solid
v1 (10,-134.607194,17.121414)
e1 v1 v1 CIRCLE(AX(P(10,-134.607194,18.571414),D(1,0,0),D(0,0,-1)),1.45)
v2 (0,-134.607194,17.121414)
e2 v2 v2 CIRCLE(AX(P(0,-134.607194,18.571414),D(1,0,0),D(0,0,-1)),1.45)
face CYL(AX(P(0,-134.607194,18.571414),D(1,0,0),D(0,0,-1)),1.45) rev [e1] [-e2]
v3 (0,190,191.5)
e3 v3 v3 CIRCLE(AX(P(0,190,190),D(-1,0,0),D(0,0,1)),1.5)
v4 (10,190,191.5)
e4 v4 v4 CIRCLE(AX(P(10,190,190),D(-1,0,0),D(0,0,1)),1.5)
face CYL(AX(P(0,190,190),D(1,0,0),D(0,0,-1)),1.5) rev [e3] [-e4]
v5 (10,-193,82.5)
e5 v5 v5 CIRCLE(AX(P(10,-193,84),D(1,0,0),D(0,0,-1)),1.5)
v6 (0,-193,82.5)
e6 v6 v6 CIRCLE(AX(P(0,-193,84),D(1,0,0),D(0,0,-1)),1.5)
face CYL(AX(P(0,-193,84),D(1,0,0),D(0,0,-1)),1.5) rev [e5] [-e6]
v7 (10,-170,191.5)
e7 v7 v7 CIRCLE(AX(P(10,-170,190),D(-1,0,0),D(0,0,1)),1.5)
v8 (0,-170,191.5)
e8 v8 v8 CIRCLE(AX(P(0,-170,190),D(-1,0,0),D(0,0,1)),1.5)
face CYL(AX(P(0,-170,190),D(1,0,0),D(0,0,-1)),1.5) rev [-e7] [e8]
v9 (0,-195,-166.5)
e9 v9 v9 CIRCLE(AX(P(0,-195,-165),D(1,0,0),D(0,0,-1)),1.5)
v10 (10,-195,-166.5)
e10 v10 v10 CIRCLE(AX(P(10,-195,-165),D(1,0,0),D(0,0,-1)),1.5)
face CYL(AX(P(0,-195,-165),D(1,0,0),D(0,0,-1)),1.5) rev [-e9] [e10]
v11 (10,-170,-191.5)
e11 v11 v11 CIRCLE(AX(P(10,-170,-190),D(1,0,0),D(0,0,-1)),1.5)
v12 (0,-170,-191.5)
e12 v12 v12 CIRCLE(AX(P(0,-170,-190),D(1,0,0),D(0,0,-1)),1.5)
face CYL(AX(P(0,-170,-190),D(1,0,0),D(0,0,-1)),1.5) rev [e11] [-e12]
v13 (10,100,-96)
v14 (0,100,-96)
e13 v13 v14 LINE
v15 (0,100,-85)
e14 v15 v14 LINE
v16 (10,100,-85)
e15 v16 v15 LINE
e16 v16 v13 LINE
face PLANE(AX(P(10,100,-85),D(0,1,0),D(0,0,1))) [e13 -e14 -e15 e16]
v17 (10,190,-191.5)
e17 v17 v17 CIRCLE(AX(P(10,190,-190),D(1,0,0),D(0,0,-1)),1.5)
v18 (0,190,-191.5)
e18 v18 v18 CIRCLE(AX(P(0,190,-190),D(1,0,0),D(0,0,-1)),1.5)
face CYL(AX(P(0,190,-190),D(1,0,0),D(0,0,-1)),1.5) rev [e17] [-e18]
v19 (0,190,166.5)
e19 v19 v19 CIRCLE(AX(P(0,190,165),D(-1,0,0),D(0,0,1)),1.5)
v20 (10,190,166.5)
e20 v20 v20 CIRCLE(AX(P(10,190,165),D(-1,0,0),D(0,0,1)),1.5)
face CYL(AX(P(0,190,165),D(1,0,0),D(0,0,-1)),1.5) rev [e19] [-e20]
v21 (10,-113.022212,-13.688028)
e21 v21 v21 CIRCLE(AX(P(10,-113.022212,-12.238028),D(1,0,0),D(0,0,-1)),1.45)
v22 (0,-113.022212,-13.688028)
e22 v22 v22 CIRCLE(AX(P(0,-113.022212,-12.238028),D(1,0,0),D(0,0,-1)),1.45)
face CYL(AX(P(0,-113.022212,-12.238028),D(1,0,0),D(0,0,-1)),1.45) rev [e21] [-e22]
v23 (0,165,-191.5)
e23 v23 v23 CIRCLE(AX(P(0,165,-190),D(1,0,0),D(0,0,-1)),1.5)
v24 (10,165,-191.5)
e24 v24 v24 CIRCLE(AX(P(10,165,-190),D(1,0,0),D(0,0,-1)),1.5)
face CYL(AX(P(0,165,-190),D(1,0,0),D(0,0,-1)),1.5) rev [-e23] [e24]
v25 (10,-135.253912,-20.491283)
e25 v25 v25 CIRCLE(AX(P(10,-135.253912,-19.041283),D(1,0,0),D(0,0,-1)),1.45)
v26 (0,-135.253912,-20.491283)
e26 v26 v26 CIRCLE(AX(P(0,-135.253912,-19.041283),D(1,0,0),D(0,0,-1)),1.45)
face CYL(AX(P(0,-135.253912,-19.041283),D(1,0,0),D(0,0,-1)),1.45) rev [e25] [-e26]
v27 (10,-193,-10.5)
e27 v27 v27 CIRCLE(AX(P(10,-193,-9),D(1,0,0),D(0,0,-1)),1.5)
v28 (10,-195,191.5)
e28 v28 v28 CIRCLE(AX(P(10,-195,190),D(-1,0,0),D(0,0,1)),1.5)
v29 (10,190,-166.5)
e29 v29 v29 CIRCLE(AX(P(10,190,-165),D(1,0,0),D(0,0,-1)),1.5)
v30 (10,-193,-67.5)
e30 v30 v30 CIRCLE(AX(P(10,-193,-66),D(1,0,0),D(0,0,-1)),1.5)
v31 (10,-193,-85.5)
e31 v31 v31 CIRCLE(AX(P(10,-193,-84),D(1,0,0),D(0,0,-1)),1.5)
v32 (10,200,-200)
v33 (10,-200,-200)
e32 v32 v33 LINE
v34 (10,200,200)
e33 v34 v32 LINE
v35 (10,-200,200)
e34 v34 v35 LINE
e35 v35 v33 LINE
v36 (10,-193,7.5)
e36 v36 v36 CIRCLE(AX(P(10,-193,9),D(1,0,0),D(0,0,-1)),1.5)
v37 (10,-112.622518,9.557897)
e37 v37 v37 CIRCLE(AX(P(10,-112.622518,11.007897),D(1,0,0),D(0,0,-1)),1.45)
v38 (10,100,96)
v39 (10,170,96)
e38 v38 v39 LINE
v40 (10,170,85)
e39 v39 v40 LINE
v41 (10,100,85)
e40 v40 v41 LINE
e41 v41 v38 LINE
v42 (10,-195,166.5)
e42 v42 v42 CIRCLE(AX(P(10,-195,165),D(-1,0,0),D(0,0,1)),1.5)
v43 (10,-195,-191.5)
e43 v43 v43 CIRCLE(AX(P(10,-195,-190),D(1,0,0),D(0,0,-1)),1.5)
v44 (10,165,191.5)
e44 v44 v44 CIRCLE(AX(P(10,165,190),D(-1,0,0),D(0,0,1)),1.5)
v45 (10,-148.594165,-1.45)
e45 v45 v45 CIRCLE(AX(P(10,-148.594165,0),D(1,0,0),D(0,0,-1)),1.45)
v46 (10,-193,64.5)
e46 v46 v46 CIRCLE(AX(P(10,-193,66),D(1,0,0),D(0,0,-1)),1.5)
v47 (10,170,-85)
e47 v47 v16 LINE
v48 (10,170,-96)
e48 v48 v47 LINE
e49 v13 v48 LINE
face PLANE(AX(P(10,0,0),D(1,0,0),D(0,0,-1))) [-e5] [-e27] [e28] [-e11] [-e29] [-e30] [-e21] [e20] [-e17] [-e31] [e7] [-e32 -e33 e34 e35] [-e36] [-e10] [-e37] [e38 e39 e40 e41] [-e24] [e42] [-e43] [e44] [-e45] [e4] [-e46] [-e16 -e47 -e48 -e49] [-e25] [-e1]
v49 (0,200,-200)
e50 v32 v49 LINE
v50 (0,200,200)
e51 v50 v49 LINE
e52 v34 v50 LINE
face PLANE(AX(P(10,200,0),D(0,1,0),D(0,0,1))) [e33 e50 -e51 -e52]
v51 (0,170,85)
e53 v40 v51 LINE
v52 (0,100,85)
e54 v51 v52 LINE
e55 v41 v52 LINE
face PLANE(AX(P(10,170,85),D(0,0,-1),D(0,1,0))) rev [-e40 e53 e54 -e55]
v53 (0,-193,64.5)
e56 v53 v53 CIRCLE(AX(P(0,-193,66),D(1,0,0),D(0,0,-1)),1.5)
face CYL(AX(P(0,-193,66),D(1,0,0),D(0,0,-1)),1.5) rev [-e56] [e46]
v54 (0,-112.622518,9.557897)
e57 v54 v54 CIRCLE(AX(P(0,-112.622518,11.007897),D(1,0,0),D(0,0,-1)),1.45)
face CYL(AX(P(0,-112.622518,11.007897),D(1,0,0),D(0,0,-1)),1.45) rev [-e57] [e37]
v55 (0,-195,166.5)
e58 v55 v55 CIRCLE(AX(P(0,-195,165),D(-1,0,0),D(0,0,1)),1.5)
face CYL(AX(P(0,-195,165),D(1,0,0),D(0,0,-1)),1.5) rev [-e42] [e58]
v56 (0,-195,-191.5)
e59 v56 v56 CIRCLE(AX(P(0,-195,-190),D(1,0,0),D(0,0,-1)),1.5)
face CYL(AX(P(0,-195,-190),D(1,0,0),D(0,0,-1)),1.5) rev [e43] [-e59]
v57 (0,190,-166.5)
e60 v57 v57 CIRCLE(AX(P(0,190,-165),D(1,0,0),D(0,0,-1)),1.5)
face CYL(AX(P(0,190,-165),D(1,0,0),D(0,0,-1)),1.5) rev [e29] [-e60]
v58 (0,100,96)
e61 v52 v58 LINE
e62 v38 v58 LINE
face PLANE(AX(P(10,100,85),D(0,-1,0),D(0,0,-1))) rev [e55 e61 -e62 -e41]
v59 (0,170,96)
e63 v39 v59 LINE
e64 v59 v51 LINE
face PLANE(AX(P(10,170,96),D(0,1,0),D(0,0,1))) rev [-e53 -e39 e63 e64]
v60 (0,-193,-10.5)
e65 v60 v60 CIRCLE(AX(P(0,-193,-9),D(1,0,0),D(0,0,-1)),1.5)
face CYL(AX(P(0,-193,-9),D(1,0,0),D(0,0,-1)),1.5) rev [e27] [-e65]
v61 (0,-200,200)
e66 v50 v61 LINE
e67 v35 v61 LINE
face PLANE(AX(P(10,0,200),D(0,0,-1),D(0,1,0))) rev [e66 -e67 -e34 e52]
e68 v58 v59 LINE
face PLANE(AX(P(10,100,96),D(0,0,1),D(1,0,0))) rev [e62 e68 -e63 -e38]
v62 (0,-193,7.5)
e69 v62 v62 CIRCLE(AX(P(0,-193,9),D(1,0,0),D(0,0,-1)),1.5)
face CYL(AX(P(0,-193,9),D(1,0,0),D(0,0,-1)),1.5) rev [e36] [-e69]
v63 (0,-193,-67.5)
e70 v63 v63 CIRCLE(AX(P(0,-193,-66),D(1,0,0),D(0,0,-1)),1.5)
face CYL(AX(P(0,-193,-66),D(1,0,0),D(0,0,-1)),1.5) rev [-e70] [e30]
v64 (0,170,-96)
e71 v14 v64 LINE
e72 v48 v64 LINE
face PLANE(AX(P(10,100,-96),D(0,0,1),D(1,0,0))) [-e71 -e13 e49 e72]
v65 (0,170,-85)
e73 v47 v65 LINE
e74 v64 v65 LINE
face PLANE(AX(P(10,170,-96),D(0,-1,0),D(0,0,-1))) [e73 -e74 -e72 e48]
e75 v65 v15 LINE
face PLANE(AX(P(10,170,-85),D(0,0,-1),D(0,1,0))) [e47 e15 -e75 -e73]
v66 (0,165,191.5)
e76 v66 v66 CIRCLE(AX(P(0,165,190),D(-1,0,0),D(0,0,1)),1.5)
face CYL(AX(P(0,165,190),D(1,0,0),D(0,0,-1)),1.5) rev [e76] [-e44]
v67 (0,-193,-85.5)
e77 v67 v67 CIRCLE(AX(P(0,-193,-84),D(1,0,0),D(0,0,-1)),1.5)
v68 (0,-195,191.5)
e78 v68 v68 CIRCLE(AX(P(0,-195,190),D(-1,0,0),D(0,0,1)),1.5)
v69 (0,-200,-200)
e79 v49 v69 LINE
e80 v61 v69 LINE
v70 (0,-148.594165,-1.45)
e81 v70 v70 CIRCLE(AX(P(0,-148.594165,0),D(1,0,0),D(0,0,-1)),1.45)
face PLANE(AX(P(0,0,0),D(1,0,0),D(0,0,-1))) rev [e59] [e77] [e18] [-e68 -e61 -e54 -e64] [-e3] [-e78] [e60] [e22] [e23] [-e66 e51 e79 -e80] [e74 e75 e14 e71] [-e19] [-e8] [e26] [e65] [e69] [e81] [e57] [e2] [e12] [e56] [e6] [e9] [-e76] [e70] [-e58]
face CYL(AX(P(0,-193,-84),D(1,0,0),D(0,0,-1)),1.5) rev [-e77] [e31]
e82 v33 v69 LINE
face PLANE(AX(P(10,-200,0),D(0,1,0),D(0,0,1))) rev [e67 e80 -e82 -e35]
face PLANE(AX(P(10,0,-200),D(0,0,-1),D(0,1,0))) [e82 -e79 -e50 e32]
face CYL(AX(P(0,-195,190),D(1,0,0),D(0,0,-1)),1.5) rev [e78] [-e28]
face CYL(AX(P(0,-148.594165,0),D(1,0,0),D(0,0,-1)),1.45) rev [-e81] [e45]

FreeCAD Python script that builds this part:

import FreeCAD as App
import Part
import Sketcher

V = App.Vector

doc = App.newDocument("Part")
body = doc.addObject("PartDesign::Body", "Body")

# Sketch on YZ plane
sketch1 = body.newObject("Sketcher::SketchObject", "Sketch")
sketch1.AttachmentSupport = (doc.getObject("YZ_Plane"), [""])
sketch1.MapMode = "FlatFace"
sketch1.addGeometry([
    Part.LineSegment(V(200, 200, 0), V(-200, 200, 0)),
    Part.LineSegment(V(-200, 200, 0), V(-200, -200, 0)),
    Part.LineSegment(V(-200, -200, 0), V(200, -200, 0)),
    Part.LineSegment(V(200, -200, 0), V(200, 200, 0)),
], False)
sketch1.addConstraint([
    Sketcher.Constraint("Coincident", 0, 2, 1, 1),
    Sketcher.Constraint("Coincident", 1, 2, 2, 1),
    Sketcher.Constraint("Coincident", 2, 2, 3, 1),
    Sketcher.Constraint("Coincident", 3, 2, 0, 1),
    Sketcher.Constraint("Horizontal", 0),
    Sketcher.Constraint("Vertical", 1),
    Sketcher.Constraint("Horizontal", 2),
    Sketcher.Constraint("Vertical", 3),
    Sketcher.Constraint("Symmetric", 0, 2, 2, 2, -1, 1),
    Sketcher.Constraint("Equal", 2, 1),
    Sketcher.Constraint("DistanceX", 0, 2, 0, 1, 400.0),
])
pad1 = body.newObject("PartDesign::Pad", "Pad")
pad1.Profile = sketch1
pad1.Length = 10

# Sketch on YZ plane
sketch2 = body.newObject("Sketcher::SketchObject", "Sketch001")
sketch2.AttachmentSupport = (doc.getObject("YZ_Plane"), [""])
sketch2.MapMode = "FlatFace"
sketch2.AttachmentOffset = App.Placement(V(0, 0, 10), App.Rotation())
sketch2.addGeometry([
    Part.Circle(V(190, -190, 0), V(0, 0, 1), 1.5),  # 0
    Part.Circle(V(190, -165, 0), V(0, 0, 1), 1.5),  # 1
    Part.Circle(V(165, -190, 0), V(0, 0, 1), 1.5),  # 2
    Part.Circle(V(-195, -190, 0), V(0, 0, 1), 1.5),  # 3
    Part.Circle(V(-195, -165, 0), V(0, 0, 1), 1.5),  # 4
    Part.Circle(V(-170, -190, 0), V(0, 0, 1), 1.5),  # 5
], False)
sketch2.addConstraint([
    Sketcher.Constraint("Equal", 0, 1),
    Sketcher.Constraint("Equal", 1, 2),
    Sketcher.Constraint("Equal", 2, 3),
    Sketcher.Constraint("Equal", 3, 4),
    Sketcher.Constraint("Equal", 4, 5),
    Sketcher.Constraint("Horizontal", 0, 3, 2, 3),
    Sketcher.Constraint("Horizontal", 2, 3, 3, 3),
    Sketcher.Constraint("Horizontal", 1, 3, 4, 3),
    Sketcher.Constraint("Horizontal", 3, 3, 5, 3),
    Sketcher.Constraint("Vertical", 0, 3, 1, 3),
    Sketcher.Constraint("Vertical", 3, 3, 4, 3),
    Sketcher.Constraint("Diameter", 0, 3.0),
    Sketcher.Constraint("DistanceX", -1, 1, 0, 3, 190.0),
    Sketcher.Constraint("DistanceY", 0, 3, -1, 1, 190.0),
    Sketcher.Constraint("DistanceY", 1, 3, -1, 1, 165.0),
    Sketcher.Constraint("DistanceX", -1, 1, 2, 3, 165.0),
    Sketcher.Constraint("DistanceX", 3, 3, -1, 1, 195.0),
    Sketcher.Constraint("DistanceX", 5, 3, -1, 1, 170.0),
])
pocket1 = body.newObject("PartDesign::Pocket", "Pocket")
pocket1.Profile = sketch2
pocket1.Length = 10

# Sketch on YZ plane
sketch3 = body.newObject("Sketcher::SketchObject", "Sketch002")
sketch3.AttachmentSupport = (doc.getObject("YZ_Plane"), [""])
sketch3.MapMode = "FlatFace"
sketch3.AttachmentOffset = App.Placement(V(0, 0, 10), App.Rotation())
sketch3.addGeometry([
    Part.Circle(V(-193, 84, 0), V(0, 0, 1), 1.5),  # 0
    Part.Circle(V(-193, 66, 0), V(0, 0, 1), 1.5),  # 1
    Part.Circle(V(-193, 9, 0), V(0, 0, 1), 1.5),  # 2
    Part.Circle(V(-193, -9, 0), V(0, 0, 1), 1.5),  # 3
    Part.Circle(V(-193, -66, 0), V(0, 0, 1), 1.5),  # 4
    Part.Circle(V(-193, -84, 0), V(0, 0, 1), 1.5),  # 5
], False)
sketch3.addConstraint([
    Sketcher.Constraint("Equal", 0, 1),
    Sketcher.Constraint("Equal", 1, 2),
    Sketcher.Constraint("Equal", 2, 3),
    Sketcher.Constraint("Equal", 3, 4),
    Sketcher.Constraint("Equal", 4, 5),
    Sketcher.Constraint("Symmetric", 2, 3, 3, 3, -1),
    Sketcher.Constraint("Symmetric", 1, 3, 4, 3, -1),
    Sketcher.Constraint("Symmetric", 0, 3, 5, 3, -1),
    Sketcher.Constraint("Vertical", 0, 3, 1, 3),
    Sketcher.Constraint("Vertical", 1, 3, 2, 3),
    Sketcher.Constraint("Diameter", 0, 3.0),
    Sketcher.Constraint("DistanceX", 0, 3, -1, 1, 193.0),
    Sketcher.Constraint("DistanceY", -1, 1, 0, 3, 84.0),
    Sketcher.Constraint("DistanceY", -1, 1, 1, 3, 66.0),
    Sketcher.Constraint("DistanceY", -1, 1, 2, 3, 9.0),
])
pocket2 = body.newObject("PartDesign::Pocket", "Pocket001")
pocket2.Profile = sketch3
pocket2.Length = 10
doc.recompute()

mirrored = body.newObject("PartDesign::Mirrored", "Mirrored")
mirrored.Originals = [pocket1]
mirrored.MirrorPlane = (doc.getObject("XY_Plane"), [""])
body.Tip = mirrored

# Sketch on YZ plane
sketch4 = body.newObject("Sketcher::SketchObject", "Sketch003")
sketch4.AttachmentSupport = (doc.getObject("YZ_Plane"), [""])
sketch4.MapMode = "FlatFace"
sketch4.AttachmentOffset = App.Placement(V(0, 0, 10), App.Rotation())
sketch4.addGeometry([
    Part.Circle(V(-112.6, 11, 0), V(0, 0, 1), 1.4),  # 0
    Part.Circle(V(-113, -12.2, 0), V(0, 0, 1), 1.4),  # 1
    Part.Circle(V(-134.6, 18.6, 0), V(0, 0, 1), 1.4),  # 2
    Part.Circle(V(-135.3, -19, 0), V(0, 0, 1), 1.4),  # 3
    Part.Circle(V(-148.6, 0, 0), V(0, 0, 1), 1.4),  # 4
], False)
sketch4.addConstraint([
    Sketcher.Constraint("Equal", 0, 1),
    Sketcher.Constraint("Equal", 1, 2),
    Sketcher.Constraint("Equal", 2, 3),
    Sketcher.Constraint("Equal", 3, 4),
    Sketcher.Constraint("PointOnObject", 4, 3, -1),
    Sketcher.Constraint("Diameter", 0, 2.9),
    Sketcher.Constraint("DistanceX", 3, 3, 1, 3, 22.231701),
    Sketcher.Constraint("DistanceX", 1, 3, -1, 1, 113.022212),
    Sketcher.Constraint("DistanceY", 1, 3, -1, 1, 12.238028),
    Sketcher.Constraint("DistanceY", 3, 3, 0, 3, 30.049179),
    Sketcher.Constraint("DistanceX", 3, 3, 2, 3, 0.646718),
    Sketcher.Constraint("DistanceX", 4, 3, 2, 3, 13.986971),
    Sketcher.Constraint("DistanceX", 0, 3, -1, 1, 112.622518),
    Sketcher.Constraint("DistanceY", -1, 1, 0, 3, 11.007897),
    Sketcher.Constraint("DistanceY", -1, 1, 2, 3, 18.571414),
])
pocket3 = body.newObject("PartDesign::Pocket", "Pocket002")
pocket3.Profile = sketch4
pocket3.Length = 10

# Sketch on YZ plane
sketch5 = body.newObject("Sketcher::SketchObject", "Sketch004")
sketch5.AttachmentSupport = (doc.getObject("YZ_Plane"), [""])
sketch5.MapMode = "FlatFace"
sketch5.addGeometry([
    Part.LineSegment(V(170, 96, 0), V(100, 96, 0)),  # 0
    Part.LineSegment(V(100, 96, 0), V(100, 85, 0)),  # 1
    Part.LineSegment(V(100, 85, 0), V(170, 85, 0)),  # 2
    Part.LineSegment(V(170, 85, 0), V(170, 96, 0)),  # 3
    Part.LineSegment(V(170, -85, 0), V(100, -85, 0)),  # 4
    Part.LineSegment(V(100, -85, 0), V(100, -96, 0)),  # 5
    Part.LineSegment(V(100, -96, 0), V(170, -96, 0)),  # 6
    Part.LineSegment(V(170, -96, 0), V(170, -85, 0)),  # 7
], False)
sketch5.addConstraint([
    Sketcher.Constraint("Coincident", 0, 2, 1, 1),
    Sketcher.Constraint("Coincident", 1, 2, 2, 1),
    Sketcher.Constraint("Coincident", 2, 2, 3, 1),
    Sketcher.Constraint("Coincident", 3, 2, 0, 1),
    Sketcher.Constraint("Coincident", 4, 2, 5, 1),
    Sketcher.Constraint("Coincident", 5, 2, 6, 1),
    Sketcher.Constraint("Coincident", 6, 2, 7, 1),
    Sketcher.Constraint("Coincident", 7, 2, 4, 1),
    Sketcher.Constraint("Horizontal", 0),
    Sketcher.Constraint("Vertical", 1),
    Sketcher.Constraint("Horizontal", 2),
    Sketcher.Constraint("Vertical", 3),
    Sketcher.Constraint("Horizontal", 4),
    Sketcher.Constraint("Vertical", 5),
    Sketcher.Constraint("Horizontal", 6),
    Sketcher.Constraint("Vertical", 7),
    Sketcher.Constraint("Symmetric", 1, 2, 4, 2, -1),
    Sketcher.Constraint("Symmetric", 3, 2, 6, 2, -1),
    Sketcher.Constraint("DistanceX", 0, 2, 0, 1, 70.0),
    Sketcher.Constraint("DistanceY", 1, 2, 1, 1, 11.0),
    Sketcher.Constraint("DistanceX", -1, 1, 0, 2, 100.0),
    Sketcher.Constraint("DistanceY", -1, 1, 0, 2, 96.0),
])
pocket4 = body.newObject("PartDesign::Pocket", "Pocket003")
pocket4.Profile = sketch5
pocket4.Length = 10
pocket4.Reversed = True

doc.recompute()
